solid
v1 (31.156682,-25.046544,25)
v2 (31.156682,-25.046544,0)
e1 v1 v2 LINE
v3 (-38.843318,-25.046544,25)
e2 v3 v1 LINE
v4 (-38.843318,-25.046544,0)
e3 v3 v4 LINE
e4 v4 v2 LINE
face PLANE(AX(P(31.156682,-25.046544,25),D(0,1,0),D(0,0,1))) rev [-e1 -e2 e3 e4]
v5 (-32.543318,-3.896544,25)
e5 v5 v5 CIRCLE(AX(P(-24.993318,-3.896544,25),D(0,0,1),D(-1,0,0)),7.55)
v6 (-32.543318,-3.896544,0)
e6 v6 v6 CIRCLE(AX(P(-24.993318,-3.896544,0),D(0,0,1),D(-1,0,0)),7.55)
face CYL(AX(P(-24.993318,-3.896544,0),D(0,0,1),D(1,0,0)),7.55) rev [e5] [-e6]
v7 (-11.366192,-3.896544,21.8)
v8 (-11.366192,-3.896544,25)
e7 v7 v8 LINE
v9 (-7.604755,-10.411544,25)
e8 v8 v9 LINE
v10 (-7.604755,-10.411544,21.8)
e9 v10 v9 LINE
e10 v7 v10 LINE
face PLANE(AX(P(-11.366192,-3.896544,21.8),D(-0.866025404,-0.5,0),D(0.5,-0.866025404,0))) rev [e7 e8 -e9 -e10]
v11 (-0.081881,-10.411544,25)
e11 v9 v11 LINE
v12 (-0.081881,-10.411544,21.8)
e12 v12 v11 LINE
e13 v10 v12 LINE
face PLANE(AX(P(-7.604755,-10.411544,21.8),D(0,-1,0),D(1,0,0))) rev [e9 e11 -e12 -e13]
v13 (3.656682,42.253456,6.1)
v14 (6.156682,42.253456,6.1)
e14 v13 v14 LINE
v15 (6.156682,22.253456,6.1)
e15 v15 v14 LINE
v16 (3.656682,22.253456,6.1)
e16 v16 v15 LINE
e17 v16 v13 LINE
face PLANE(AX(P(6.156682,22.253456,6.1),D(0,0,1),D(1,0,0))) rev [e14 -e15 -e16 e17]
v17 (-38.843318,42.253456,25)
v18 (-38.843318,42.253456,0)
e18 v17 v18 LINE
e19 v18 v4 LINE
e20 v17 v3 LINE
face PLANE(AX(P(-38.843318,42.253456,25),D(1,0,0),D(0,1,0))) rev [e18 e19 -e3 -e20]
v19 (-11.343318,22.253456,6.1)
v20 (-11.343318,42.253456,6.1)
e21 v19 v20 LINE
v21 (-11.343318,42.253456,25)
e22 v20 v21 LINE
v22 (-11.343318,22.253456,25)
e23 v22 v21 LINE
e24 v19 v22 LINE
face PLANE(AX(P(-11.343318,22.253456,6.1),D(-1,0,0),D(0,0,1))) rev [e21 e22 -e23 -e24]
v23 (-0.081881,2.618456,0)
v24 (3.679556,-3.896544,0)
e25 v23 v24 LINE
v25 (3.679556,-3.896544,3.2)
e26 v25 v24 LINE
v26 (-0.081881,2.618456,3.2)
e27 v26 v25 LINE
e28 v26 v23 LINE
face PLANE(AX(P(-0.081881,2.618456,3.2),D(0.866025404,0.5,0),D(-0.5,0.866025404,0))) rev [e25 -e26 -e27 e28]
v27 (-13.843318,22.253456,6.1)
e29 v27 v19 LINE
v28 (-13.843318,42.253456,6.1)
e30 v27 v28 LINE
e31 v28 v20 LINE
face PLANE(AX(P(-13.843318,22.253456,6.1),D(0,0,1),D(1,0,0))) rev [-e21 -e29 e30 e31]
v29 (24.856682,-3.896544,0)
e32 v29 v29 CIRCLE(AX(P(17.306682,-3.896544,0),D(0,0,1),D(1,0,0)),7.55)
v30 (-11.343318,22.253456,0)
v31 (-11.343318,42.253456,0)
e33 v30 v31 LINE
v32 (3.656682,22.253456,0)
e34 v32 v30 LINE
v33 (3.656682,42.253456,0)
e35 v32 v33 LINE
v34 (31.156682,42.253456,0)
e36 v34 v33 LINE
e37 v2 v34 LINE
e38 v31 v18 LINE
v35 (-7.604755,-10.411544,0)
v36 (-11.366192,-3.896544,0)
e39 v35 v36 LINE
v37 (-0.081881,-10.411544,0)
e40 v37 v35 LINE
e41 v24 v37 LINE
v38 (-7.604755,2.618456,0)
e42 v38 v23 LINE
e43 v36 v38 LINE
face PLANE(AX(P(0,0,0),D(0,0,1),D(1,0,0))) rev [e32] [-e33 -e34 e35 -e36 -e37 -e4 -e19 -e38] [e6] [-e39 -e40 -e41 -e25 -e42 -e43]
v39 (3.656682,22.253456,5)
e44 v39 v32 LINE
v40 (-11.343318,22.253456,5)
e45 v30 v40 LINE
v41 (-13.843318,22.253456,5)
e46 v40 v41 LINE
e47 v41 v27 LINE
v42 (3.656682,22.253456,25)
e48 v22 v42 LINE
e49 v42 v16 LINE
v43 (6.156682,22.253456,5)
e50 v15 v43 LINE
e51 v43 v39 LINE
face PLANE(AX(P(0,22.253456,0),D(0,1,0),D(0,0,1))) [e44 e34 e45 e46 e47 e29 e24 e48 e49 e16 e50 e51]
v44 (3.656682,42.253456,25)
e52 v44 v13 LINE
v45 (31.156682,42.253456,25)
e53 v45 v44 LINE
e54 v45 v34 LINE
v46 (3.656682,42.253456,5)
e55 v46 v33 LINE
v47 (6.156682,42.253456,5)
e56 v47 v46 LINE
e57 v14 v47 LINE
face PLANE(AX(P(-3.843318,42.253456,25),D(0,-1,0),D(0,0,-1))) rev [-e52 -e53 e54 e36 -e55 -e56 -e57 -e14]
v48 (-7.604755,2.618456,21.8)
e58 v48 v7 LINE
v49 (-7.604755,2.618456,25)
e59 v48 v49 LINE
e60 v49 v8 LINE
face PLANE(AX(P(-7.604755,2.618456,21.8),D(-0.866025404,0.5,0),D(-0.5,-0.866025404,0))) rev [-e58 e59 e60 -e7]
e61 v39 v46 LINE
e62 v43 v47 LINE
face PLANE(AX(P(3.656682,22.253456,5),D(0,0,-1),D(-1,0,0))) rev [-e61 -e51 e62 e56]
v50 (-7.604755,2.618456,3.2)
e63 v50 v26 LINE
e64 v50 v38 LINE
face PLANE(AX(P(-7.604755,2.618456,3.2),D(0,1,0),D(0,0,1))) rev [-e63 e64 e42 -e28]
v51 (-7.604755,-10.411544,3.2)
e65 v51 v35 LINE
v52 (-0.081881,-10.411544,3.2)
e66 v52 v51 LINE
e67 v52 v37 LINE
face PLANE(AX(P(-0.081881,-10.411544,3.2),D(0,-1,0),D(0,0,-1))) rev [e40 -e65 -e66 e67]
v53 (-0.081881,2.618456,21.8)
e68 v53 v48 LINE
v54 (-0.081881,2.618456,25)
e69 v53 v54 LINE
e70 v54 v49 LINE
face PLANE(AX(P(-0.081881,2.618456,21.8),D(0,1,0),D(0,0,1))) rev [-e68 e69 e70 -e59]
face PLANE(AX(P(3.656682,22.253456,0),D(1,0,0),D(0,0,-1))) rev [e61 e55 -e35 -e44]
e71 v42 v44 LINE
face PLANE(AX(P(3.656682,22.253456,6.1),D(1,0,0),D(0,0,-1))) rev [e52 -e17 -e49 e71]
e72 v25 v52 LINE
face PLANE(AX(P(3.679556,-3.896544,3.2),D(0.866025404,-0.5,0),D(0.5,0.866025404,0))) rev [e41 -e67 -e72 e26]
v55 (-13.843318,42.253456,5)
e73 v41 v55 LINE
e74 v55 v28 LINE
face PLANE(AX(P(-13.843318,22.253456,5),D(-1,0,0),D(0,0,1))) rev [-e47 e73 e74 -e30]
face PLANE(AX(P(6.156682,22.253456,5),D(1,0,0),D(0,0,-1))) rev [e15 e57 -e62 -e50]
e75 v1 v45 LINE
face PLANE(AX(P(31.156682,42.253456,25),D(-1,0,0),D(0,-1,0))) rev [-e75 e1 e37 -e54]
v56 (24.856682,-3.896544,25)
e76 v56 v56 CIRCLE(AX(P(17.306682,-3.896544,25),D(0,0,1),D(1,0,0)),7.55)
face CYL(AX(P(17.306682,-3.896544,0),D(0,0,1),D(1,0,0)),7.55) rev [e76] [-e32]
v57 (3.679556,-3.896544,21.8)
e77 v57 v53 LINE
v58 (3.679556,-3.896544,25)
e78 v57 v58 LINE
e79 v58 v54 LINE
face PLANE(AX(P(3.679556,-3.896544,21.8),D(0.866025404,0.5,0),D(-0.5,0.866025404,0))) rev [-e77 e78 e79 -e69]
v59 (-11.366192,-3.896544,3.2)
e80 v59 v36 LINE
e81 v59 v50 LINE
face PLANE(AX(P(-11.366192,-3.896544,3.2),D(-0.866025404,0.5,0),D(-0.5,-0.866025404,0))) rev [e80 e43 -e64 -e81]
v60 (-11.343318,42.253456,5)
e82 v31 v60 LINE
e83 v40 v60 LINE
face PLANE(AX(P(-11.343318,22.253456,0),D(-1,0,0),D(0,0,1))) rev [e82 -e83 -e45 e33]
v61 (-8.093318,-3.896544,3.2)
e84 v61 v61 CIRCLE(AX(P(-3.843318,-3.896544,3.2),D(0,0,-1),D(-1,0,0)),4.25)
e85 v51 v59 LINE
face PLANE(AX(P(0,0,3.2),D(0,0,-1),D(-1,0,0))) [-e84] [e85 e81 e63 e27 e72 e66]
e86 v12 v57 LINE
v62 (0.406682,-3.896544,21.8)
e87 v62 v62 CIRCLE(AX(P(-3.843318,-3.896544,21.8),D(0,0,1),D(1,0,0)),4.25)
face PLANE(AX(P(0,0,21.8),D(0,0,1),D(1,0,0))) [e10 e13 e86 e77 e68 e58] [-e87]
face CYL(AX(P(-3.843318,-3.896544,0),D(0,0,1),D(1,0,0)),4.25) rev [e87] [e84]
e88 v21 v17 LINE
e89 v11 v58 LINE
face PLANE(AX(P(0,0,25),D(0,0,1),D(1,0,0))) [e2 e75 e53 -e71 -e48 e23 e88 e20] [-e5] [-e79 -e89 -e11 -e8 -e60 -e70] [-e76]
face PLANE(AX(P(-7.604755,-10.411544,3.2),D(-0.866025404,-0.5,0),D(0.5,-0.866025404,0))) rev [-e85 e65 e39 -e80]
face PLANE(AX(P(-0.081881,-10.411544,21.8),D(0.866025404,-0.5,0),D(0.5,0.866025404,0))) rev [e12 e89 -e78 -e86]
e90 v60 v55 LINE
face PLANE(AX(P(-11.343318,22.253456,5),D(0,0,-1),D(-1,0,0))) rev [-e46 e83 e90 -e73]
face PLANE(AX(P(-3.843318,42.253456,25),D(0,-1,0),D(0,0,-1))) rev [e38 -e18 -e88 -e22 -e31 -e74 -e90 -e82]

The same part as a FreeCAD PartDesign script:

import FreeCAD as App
import Part
import Sketcher

V = App.Vector
Q = App.Units.Quantity


def add_polygon(sketch, points):
    """Adds a closed chain of lines whose ends are joined by coincident constraints."""
    first, n = sketch.GeometryCount, len(points)
    for a, b in zip(points, points[1:] + points[:1]):
        sketch.addGeometry(Part.LineSegment(App.Vector(*a, 0), App.Vector(*b, 0)), False)
    for i in range(n):
        sketch.addConstraint(Sketcher.Constraint("Coincident", first + i, 2, first + (i + 1) % n, 1))

doc = App.newDocument("Part")
body = doc.addObject("PartDesign::Body", "Body")

# Sketch on XY plane
sketch1 = body.newObject("Sketcher::SketchObject", "Sketch")
sketch1.AttachmentSupport = (doc.getObject("XY_Plane"), [""])
sketch1.MapMode = "FlatFace"
add_polygon(sketch1, [(31, 42), (-39, 42), (-39, -25), (31, -25)])  # lines 0-3
sketch1.addConstraint([
    Sketcher.Constraint("Horizontal", 0),
    Sketcher.Constraint("Vertical", 1),
    Sketcher.Constraint("Horizontal", 2),
    Sketcher.Constraint("Vertical", 3),
    Sketcher.Constraint("DistanceX", 0, 2, 0, 1, Q("70 mm")),
    Sketcher.Constraint("DistanceY", 1, 2, 1, 1, Q("67.3 mm")),
    Sketcher.Constraint("DistanceX", 0, 2, -1, 1, Q("38.843318 mm")),
    Sketcher.Constraint("DistanceY", -1, 1, 0, 2, Q("42.253456 mm")),
])
pad1 = body.newObject("PartDesign::Pad", "Pad")
pad1.Profile = sketch1
pad1.Length = 25

# Sketch on XY plane
sketch2 = body.newObject("Sketcher::SketchObject", "Sketch001")
sketch2.AttachmentSupport = (doc.getObject("XY_Plane"), [""])
sketch2.MapMode = "FlatFace"
sketch2.AttachmentOffset = App.Placement(V(0, 0, 25), App.Rotation())
add_polygon(sketch2, [(4, -4), (0, 3), (-8, 3), (-11, -4), (-8, -10), (0, -10)])  # lines 0-5
sketch2.addConstraint([
    Sketcher.Constraint("Horizontal", 1),
    Sketcher.Constraint("Horizontal", 4),
    Sketcher.Constraint("Parallel", 0, 3),
    Sketcher.Constraint("Parallel", 2, 5),
    Sketcher.Constraint("Horizontal", 2, 2, 5, 2),
    Sketcher.Constraint("Vertical", 1, 2, 3, 2),
    Sketcher.Constraint("Vertical", 0, 2, 4, 2),
    Sketcher.Constraint("Angle", 0, Q("120 deg")),
    Sketcher.Constraint("DistanceY", 3, 2, 1, 2, Q("13.03 mm")),
    Sketcher.Constraint("DistanceX", 1, 2, 1, 1, Q("7.522874 mm")),
    Sketcher.Constraint("DistanceX", 0, 2, -1, 1, Q("0.081881 mm")),
    Sketcher.Constraint("DistanceY", -1, 1, 0, 2, Q("2.618456 mm")),
])
pocket1 = body.newObject("PartDesign::Pocket", "Pocket")
pocket1.Profile = sketch2
pocket1.Length = 3.2

# Sketch on XY plane
sketch3 = body.newObject("Sketcher::SketchObject", "Sketch002")
sketch3.AttachmentSupport = (doc.getObject("XY_Plane"), [""])
sketch3.MapMode = "FlatFace"
add_polygon(sketch3, [(-11, -4), (-8, 3), (0, 3), (4, -4), (0, -10), (-8, -10)])  # lines 0-5
sketch3.addConstraint([
    Sketcher.Constraint("Horizontal", 1),
    Sketcher.Constraint("Horizontal", 4),
    Sketcher.Constraint("Parallel", 0, 3),
    Sketcher.Constraint("Parallel", 2, 5),
    Sketcher.Constraint("Horizontal", 2, 2, 5, 2),
    Sketcher.Constraint("Vertical", 1, 2, 3, 2),
    Sketcher.Constraint("Vertical", 0, 2, 4, 2),
    Sketcher.Constraint("Angle", 0, Q("60 deg")),
    Sketcher.Constraint("DistanceY", 3, 2, 1, 2, Q("13.03 mm")),
    Sketcher.Constraint("DistanceX", 1, 1, 1, 2, Q("7.522874 mm")),
    Sketcher.Constraint("DistanceX", 1, 2, -1, 1, Q("0.081881 mm")),
    Sketcher.Constraint("DistanceY", -1, 1, 0, 2, Q("2.618456 mm")),
])
pocket2 = body.newObject("PartDesign::Pocket", "Pocket001")
pocket2.Profile = sketch3
pocket2.Length = 3.2
pocket2.Reversed = True

# Sketch on XY plane
sketch4 = body.newObject("Sketcher::SketchObject", "Sketch003")
sketch4.AttachmentSupport = (doc.getObject("XY_Plane"), [""])
sketch4.MapMode = "FlatFace"
sketch4.AttachmentOffset = App.Placement(V(0, 0, 21.8), App.Rotation())
sketch4.addGeometry(Part.Circle(V(-3.8, -3.9, 0), V(0, 0, 1), 4.2), False)
sketch4.addConstraint([
    Sketcher.Constraint("Diameter", 0, Q("8.5 mm")),
    Sketcher.Constraint("DistanceX", 0, 3, -1, 1, Q("3.843318 mm")),
    Sketcher.Constraint("DistanceY", 0, 3, -1, 1, Q("3.896544 mm")),
])
pocket3 = body.newObject("PartDesign::Pocket", "Pocket002")
pocket3.Profile = sketch4
pocket3.Type = "ThroughAll"
pocket3.Midplane = True

# Sketch on XY plane
sketch5 = body.newObject("Sketcher::SketchObject", "Sketch004")
sketch5.AttachmentSupport = (doc.getObject("XY_Plane"), [""])
sketch5.MapMode = "FlatFace"
sketch5.AttachmentOffset = App.Placement(V(0, 0, 25), App.Rotation())
sketch5.addGeometry([
    Part.Circle(V(17, -4, 0), V(0, 0, 1), 8),
    Part.Circle(V(-25, -4, 0), V(0, 0, 1), 8),
], False)
sketch5.addConstraint([
    Sketcher.Constraint("Equal", 0, 1),
    Sketcher.Constraint("Horizontal", 0, 3, 1, 3),
    Sketcher.Constraint("Diameter", 0, Q("15.1 mm")),
    Sketcher.Constraint("DistanceX", 1, 3, 0, 3, Q("42.3 mm")),
    Sketcher.Constraint("DistanceX", -1, 1, 0, 3, Q("17.306682 mm")),
    Sketcher.Constraint("DistanceY", 0, 3, -1, 1, Q("3.896544 mm")),
])
pocket4 = body.newObject("PartDesign::Pocket", "Pocket003")
pocket4.Profile = sketch5
pocket4.Type = "ThroughAll"
pocket4.Midplane = True

# Sketch on XZ plane
sketch6 = body.newObject("Sketcher::SketchObject", "Sketch005")
sketch6.AttachmentSupport = (doc.getObject("XZ_Plane"), [""])
sketch6.MapMode = "FlatFace"
sketch6.AttachmentOffset = App.Placement(V(0, 0, -42.253456), App.Rotation())
add_polygon(sketch6, [(3.7, 0), (-11.3, 0), (-11.3, 5), (-13.8, 5), (-13.8, 6.1), (-11.3, 6.1), (-11.3, 25), (3.7, 25), (3.7, 6.1), (6.2, 6.1), (6.2, 5), (3.7, 5)])  # lines 0-11
sketch6.addConstraint([
    Sketcher.Constraint("Horizontal", 0),
    Sketcher.Constraint("Vertical", 1),
    Sketcher.Constraint("Horizontal", 2),
    Sketcher.Constraint("Vertical", 3),
    Sketcher.Constraint("Horizontal", 4),
    Sketcher.Constraint("Vertical", 5),
    Sketcher.Constraint("Horizontal", 6),
    Sketcher.Constraint("Vertical", 7),
    Sketcher.Constraint("Horizontal", 8),
    Sketcher.Constraint("Vertical", 9),
    Sketcher.Constraint("Horizontal", 10),
    Sketcher.Constraint("Vertical", 11),
    Sketcher.Constraint("PointOnObject", 0, 2, -1),
    Sketcher.Constraint("Horizontal", 4, 2, 7, 2),
    Sketcher.Constraint("Horizontal", 2, 2, 9, 2),
    Sketcher.Constraint("Vertical", 1, 2, 4, 2),
    Sketcher.Constraint("Vertical", 7, 2, 10, 2),
    Sketcher.Constraint("Equal", 4, 8),
    Sketcher.Constraint("DistanceX", 0, 2, 0, 1, Q("15 mm")),
    Sketcher.Constraint("DistanceY", 1, 1, 1, 2, Q("5 mm")),
    Sketcher.Constraint("DistanceX", 2, 2, 2, 1, Q("2.5 mm")),
    Sketcher.Constraint("DistanceY", 3, 1, 3, 2, Q("1.1 mm")),
    Sketcher.Constraint("DistanceY", 5, 1, 5, 2, Q("18.9 mm")),
    Sketcher.Constraint("DistanceX", 0, 2, -1, 1, Q("11.343318 mm")),
])
pocket5 = body.newObject("PartDesign::Pocket", "Pocket004")
pocket5.Profile = sketch6
pocket5.Length = 20
pocket5.Reversed = True

doc.recompute()
